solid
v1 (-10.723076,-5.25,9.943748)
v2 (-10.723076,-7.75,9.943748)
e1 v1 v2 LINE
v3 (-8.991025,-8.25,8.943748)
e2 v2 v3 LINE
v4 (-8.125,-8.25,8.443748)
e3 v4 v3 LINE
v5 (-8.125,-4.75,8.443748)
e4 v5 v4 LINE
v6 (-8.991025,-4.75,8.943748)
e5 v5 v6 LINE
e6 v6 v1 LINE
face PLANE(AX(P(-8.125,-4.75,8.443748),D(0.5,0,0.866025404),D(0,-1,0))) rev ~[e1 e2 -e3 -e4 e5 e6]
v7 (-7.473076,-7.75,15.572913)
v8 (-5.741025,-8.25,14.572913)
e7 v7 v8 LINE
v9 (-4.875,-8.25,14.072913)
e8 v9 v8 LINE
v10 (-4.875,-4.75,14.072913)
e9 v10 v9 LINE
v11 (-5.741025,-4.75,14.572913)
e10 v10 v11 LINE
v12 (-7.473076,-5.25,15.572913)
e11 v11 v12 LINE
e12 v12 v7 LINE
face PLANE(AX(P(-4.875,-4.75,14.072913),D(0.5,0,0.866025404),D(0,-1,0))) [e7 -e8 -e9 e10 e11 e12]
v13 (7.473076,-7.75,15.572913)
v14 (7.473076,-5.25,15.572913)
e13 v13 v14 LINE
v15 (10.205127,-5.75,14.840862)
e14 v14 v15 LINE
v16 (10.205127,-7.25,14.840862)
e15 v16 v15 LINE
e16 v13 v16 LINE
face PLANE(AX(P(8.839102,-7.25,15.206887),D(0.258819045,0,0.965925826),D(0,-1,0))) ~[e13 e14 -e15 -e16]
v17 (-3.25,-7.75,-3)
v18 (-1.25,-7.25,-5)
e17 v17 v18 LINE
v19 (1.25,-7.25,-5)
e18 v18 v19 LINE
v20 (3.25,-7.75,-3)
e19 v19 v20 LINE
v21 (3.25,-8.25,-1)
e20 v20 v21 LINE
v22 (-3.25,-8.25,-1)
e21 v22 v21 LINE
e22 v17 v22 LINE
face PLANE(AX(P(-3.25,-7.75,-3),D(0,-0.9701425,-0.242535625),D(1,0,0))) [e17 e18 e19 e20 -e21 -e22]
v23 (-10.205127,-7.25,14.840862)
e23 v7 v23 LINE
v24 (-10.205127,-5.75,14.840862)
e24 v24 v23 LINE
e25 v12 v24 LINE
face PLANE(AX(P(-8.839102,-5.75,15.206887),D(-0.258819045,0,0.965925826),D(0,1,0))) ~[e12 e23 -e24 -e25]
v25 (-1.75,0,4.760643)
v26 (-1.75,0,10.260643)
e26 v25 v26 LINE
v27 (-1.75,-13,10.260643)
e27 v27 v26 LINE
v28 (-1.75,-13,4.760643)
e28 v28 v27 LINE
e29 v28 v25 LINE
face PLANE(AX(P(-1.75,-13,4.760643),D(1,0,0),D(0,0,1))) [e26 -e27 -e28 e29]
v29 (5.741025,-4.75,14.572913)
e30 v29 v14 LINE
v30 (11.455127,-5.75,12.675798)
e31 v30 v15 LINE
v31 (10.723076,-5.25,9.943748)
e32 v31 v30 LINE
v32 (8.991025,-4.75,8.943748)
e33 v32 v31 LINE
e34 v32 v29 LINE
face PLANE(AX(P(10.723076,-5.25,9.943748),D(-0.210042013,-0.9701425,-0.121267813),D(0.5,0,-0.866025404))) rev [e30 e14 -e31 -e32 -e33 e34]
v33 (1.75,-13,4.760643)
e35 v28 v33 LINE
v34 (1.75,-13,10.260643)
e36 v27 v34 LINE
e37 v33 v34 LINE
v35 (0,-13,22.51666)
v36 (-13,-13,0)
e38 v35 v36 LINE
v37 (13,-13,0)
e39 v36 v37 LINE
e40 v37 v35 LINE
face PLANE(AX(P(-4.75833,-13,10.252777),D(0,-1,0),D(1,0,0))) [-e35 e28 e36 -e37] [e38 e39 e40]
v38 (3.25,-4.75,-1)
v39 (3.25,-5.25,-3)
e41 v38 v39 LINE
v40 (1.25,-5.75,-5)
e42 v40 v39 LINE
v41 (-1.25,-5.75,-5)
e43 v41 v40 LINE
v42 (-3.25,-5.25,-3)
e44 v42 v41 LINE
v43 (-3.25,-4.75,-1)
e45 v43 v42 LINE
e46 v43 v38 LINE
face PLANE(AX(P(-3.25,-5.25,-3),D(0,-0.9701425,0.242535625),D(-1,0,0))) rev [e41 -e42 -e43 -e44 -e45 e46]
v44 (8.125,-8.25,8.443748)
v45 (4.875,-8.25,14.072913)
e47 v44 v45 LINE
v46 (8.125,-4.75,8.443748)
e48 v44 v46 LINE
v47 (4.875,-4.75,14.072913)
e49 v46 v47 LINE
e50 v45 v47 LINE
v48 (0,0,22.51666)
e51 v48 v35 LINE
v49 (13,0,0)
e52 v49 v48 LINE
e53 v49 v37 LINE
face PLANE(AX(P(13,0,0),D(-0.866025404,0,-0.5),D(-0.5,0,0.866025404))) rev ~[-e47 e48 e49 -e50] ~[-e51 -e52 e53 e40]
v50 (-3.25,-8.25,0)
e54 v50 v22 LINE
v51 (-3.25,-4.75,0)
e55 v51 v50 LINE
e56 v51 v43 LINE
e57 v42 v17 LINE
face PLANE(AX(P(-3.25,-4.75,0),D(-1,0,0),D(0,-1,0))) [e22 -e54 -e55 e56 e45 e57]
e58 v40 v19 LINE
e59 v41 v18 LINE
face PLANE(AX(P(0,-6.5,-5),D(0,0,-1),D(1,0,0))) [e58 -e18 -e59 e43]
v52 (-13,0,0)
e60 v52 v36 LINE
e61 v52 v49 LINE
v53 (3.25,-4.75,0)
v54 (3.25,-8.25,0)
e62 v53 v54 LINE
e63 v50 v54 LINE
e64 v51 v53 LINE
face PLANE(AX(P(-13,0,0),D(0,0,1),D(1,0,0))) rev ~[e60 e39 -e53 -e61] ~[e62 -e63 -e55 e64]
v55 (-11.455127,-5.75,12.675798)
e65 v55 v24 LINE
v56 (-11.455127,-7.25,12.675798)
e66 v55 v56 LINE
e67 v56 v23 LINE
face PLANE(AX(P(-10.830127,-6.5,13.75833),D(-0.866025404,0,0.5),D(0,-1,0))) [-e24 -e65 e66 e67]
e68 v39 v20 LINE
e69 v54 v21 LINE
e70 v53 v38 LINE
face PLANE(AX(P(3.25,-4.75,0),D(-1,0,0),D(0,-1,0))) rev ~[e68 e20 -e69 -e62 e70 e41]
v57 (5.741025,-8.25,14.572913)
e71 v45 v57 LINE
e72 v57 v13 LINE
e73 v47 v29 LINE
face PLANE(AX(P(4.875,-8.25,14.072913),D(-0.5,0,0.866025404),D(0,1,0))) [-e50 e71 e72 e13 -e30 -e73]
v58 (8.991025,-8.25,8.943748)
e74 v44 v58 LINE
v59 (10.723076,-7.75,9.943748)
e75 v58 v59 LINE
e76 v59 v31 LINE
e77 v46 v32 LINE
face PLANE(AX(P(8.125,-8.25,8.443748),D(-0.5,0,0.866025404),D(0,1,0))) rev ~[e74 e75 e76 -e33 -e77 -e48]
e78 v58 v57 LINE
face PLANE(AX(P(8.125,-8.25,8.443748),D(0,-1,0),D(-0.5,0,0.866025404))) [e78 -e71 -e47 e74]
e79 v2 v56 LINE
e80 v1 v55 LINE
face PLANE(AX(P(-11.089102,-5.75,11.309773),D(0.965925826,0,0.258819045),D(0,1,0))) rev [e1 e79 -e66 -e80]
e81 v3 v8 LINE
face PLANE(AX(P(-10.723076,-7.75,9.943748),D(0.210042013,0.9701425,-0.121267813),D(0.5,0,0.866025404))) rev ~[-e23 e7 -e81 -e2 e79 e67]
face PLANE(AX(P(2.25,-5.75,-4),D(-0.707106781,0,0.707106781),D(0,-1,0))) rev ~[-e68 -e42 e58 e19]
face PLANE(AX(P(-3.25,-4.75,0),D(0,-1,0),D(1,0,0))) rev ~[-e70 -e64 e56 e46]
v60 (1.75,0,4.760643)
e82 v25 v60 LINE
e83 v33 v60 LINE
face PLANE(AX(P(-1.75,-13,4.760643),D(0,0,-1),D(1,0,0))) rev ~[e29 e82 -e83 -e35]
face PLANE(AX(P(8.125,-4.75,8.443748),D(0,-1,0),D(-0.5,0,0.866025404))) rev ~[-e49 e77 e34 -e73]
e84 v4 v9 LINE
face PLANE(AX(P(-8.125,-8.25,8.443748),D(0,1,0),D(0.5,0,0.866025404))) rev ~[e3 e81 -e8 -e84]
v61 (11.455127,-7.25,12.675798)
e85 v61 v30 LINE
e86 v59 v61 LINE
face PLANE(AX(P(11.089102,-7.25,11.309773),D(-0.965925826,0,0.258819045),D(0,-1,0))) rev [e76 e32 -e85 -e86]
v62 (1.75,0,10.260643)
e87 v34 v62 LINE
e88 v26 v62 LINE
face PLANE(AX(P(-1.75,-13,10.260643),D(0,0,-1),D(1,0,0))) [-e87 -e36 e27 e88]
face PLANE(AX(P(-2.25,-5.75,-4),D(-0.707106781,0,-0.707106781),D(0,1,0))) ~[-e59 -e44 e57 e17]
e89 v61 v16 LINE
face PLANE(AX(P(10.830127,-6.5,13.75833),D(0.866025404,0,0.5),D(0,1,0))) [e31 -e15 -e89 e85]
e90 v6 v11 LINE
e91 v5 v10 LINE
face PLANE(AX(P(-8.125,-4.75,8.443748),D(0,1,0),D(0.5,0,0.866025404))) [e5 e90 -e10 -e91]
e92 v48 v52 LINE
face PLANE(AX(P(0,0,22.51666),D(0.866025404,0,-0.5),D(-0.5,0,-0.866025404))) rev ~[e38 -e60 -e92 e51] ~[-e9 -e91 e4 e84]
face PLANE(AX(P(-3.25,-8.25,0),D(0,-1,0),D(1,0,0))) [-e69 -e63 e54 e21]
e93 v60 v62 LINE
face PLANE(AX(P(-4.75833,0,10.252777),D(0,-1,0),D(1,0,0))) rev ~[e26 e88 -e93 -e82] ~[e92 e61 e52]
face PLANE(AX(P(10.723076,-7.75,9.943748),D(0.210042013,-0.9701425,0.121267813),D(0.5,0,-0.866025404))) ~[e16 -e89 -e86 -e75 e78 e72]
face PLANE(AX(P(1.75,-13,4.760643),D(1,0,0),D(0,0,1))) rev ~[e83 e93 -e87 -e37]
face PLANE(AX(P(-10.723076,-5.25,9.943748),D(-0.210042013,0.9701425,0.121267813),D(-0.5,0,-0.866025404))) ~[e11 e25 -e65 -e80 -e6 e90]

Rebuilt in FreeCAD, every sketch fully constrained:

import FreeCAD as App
import Part
import Sketcher
from FreeCAD import Vector
Q = App.Units.Quantity


def edges_at(feature, points):
    """Names of the edges that pass closest to the given points."""
    edges = feature.Shape.Edges
    near = lambda p: min(range(len(edges)), key=lambda i: edges[i].distToShape(Part.Vertex(*p))[0])
    return sorted({f"Edge{near(p) + 1}" for p in points})

doc = App.newDocument("Part")
params = doc.addObject("Spreadsheet::Sheet", "Params")
for row, (alias, value) in enumerate([
    ("sketch1_width", "26 mm"),
    ("pad1_length", "13 mm"),
    ("sketch2_width", "3.5 mm"),
    ("sketch2_height", "5.5 mm"),
    ("sketch3_width", "3.5 mm"),
    ("sketch3_height", "6.5 mm"),
    ("pad2_length", "5 mm"),
    ("sketch4_width", "3.5 mm"),
    ("sketch4_height", "6.5 mm"),
    ("pad3_length", "5 mm"),
    ("sketch5_width", "6.5 mm"),
    ("sketch5_height", "3.5 mm"),
    ("pad4_length", "5 mm"),
    ("chamfer_size", "4 mm"),
    ("chamfer_size2", "1 mm"),
    ("chamfer2_size", "4 mm"),
    ("chamfer2_size2", "1 mm"),
    ("chamfer3_size", "4 mm"),
    ("chamfer3_size2", "1 mm"),
    ("chamfer4_size", "4 mm"),
    ("chamfer4_size2", "1 mm"),
    ("chamfer5_size", "1 mm"),
    ("chamfer5_size2", "4 mm"),
    ("chamfer6_size", "1 mm"),
    ("chamfer6_size2", "4 mm"),
    ("chamfer7_size", "2 mm"),
], start=1):
    params.set(f"A{row}", alias)
    params.set(f"B{row}", "=" + value)
    params.setAlias(f"B{row}", alias)

body = doc.addObject("PartDesign::Body", "Body")

# Sketch on XZ plane
sketch1 = doc.addObject("Sketcher::SketchObject", "Sketch")
body.addObject(sketch1)
sketch1.AttachmentSupport = (doc.XZ_Plane, [""])
sketch1.MapMode = "FlatFace"
sketch1.addGeometry(Part.LineSegment(Vector(0, 23, 0), Vector(-13, 0, 0)), False)
sketch1.addGeometry(Part.LineSegment(Vector(-13, 0, 0), Vector(13, 0, 0)), False)
sketch1.addGeometry(Part.LineSegment(Vector(13, 0, 0), Vector(0, 23, 0)), False)
sketch1.addConstraint(Sketcher.Constraint("Coincident", 0, 2, 1, 1))
sketch1.addConstraint(Sketcher.Constraint("Coincident", 1, 2, 2, 1))
sketch1.addConstraint(Sketcher.Constraint("Coincident", 2, 2, 0, 1))
sketch1.addConstraint(Sketcher.Constraint("Horizontal", 1))
sketch1.addConstraint(Sketcher.Constraint("Symmetric", 0, 2, 1, 2, -1, 1))
sketch1.addConstraint(Sketcher.Constraint("PointOnObject", 2, 2, -2))
sketch1.addConstraint(Sketcher.Constraint("DistanceX", 1, 1, 1, 2, Q("26 mm")))
sketch1.addConstraint(Sketcher.Constraint("Angle", 0, Q("-120 deg")))
sketch1.setExpression("Constraints[6]", "Params.sketch1_width")
pad1 = doc.addObject("PartDesign::Pad", "Pad")
body.addObject(pad1)
pad1.Profile = sketch1
pad1.setExpression("Length", "Params.pad1_length")

# Sketch on XZ plane
sketch2 = doc.addObject("Sketcher::SketchObject", "Sketch001")
body.addObject(sketch2)
sketch2.AttachmentSupport = (doc.XZ_Plane, [""])
sketch2.MapMode = "FlatFace"
sketch2.AttachmentOffset = App.Placement(Vector(0, 0, 13), App.Rotation())
sketch2.addGeometry(Part.LineSegment(Vector(-1.8, 10.3, 0), Vector(-1.8, 4.8, 0)), False)
sketch2.addGeometry(Part.LineSegment(Vector(-1.8, 4.8, 0), Vector(1.8, 4.8, 0)), False)
sketch2.addGeometry(Part.LineSegment(Vector(1.8, 4.8, 0), Vector(1.8, 10.3, 0)), False)
sketch2.addGeometry(Part.LineSegment(Vector(1.8, 10.3, 0), Vector(-1.8, 10.3, 0)), False)
sketch2.addConstraint(Sketcher.Constraint("Coincident", 0, 2, 1, 1))
sketch2.addConstraint(Sketcher.Constraint("Coincident", 1, 2, 2, 1))
sketch2.addConstraint(Sketcher.Constraint("Coincident", 2, 2, 3, 1))
sketch2.addConstraint(Sketcher.Constraint("Coincident", 3, 2, 0, 1))
sketch2.addConstraint(Sketcher.Constraint("Vertical", 0))
sketch2.addConstraint(Sketcher.Constraint("Horizontal", 1))
sketch2.addConstraint(Sketcher.Constraint("Vertical", 2))
sketch2.addConstraint(Sketcher.Constraint("Horizontal", 3))
sketch2.addConstraint(Sketcher.Constraint("DistanceX", 1, 1, 1, 2, Q("3.5 mm")))
sketch2.addConstraint(Sketcher.Constraint("DistanceY", 0, 2, 0, 1, Q("5.5 mm")))
sketch2.addConstraint(Sketcher.Constraint("DistanceX", 0, 2, -1, 1, Q("1.75 mm")))
sketch2.addConstraint(Sketcher.Constraint("DistanceY", -1, 1, 0, 2, Q("4.760643 mm")))
sketch2.setExpression("Constraints[8]", "Params.sketch2_width")
sketch2.setExpression("Constraints[9]", "Params.sketch2_height")
pocket1 = doc.addObject("PartDesign::Pocket", "Pocket")
body.addObject(pocket1)
pocket1.Profile = sketch2
pocket1.Type = "ThroughAll"

# Sketch on an angled plane
sketch3 = doc.addObject("Sketcher::SketchObject", "Sketch002")
body.addObject(sketch3)
sketch3.Placement = App.Placement(Vector(9.75, 0, 5.629165), App.Rotation(Vector(0, 1, 0), Vector(-0.5, 0, 0.866025404), Vector(0.866025404, 0, 0.5), "ZXY"))
sketch3.addGeometry(Part.LineSegment(Vector(-8.2, 9.8, 0), Vector(-8.2, 3.3, 0)), False)
sketch3.addGeometry(Part.LineSegment(Vector(-8.2, 3.3, 0), Vector(-4.8, 3.3, 0)), False)
sketch3.addGeometry(Part.LineSegment(Vector(-4.8, 3.3, 0), Vector(-4.8, 9.8, 0)), False)
sketch3.addGeometry(Part.LineSegment(Vector(-4.8, 9.8, 0), Vector(-8.2, 9.8, 0)), False)
sketch3.addConstraint(Sketcher.Constraint("Coincident", 0, 2, 1, 1))
sketch3.addConstraint(Sketcher.Constraint("Coincident", 1, 2, 2, 1))
sketch3.addConstraint(Sketcher.Constraint("Coincident", 2, 2, 3, 1))
sketch3.addConstraint(Sketcher.Constraint("Coincident", 3, 2, 0, 1))
sketch3.addConstraint(Sketcher.Constraint("Vertical", 0))
sketch3.addConstraint(Sketcher.Constraint("Horizontal", 1))
sketch3.addConstraint(Sketcher.Constraint("Vertical", 2))
sketch3.addConstraint(Sketcher.Constraint("Horizontal", 3))
sketch3.addConstraint(Sketcher.Constraint("DistanceX", 1, 1, 1, 2, Q("3.5 mm")))
sketch3.addConstraint(Sketcher.Constraint("DistanceY", 0, 2, 0, 1, Q("6.5 mm")))
sketch3.addConstraint(Sketcher.Constraint("DistanceX", 0, 2, -1, 1, Q("8.25 mm")))
sketch3.addConstraint(Sketcher.Constraint("DistanceY", -1, 1, 0, 2, Q("3.25 mm")))
sketch3.setExpression("Constraints[8]", "Params.sketch3_width")
sketch3.setExpression("Constraints[9]", "Params.sketch3_height")
pad2 = doc.addObject("PartDesign::Pad", "Pad001")
body.addObject(pad2)
pad2.Profile = sketch3
pad2.setExpression("Length", "Params.pad2_length")

# Sketch on an angled plane
sketch4 = doc.addObject("Sketcher::SketchObject", "Sketch003")
body.addObject(sketch4)
sketch4.Placement = App.Placement(Vector(-9.75, 0, 5.629165), App.Rotation(Vector(0, -1, 0), Vector(0.5, 0, 0.866025404), Vector(-0.866025404, 0, 0.5), "ZXY"))
sketch4.addGeometry(Part.LineSegment(Vector(4.8, 9.8, 0), Vector(4.8, 3.3, 0)), False)
sketch4.addGeometry(Part.LineSegment(Vector(4.8, 3.3, 0), Vector(8.2, 3.3, 0)), False)
sketch4.addGeometry(Part.LineSegment(Vector(8.2, 3.3, 0), Vector(8.2, 9.8, 0)), False)
sketch4.addGeometry(Part.LineSegment(Vector(8.2, 9.8, 0), Vector(4.8, 9.8, 0)), False)
sketch4.addConstraint(Sketcher.Constraint("Coincident", 0, 2, 1, 1))
sketch4.addConstraint(Sketcher.Constraint("Coincident", 1, 2, 2, 1))
sketch4.addConstraint(Sketcher.Constraint("Coincident", 2, 2, 3, 1))
sketch4.addConstraint(Sketcher.Constraint("Coincident", 3, 2, 0, 1))
sketch4.addConstraint(Sketcher.Constraint("Vertical", 0))
sketch4.addConstraint(Sketcher.Constraint("Horizontal", 1))
sketch4.addConstraint(Sketcher.Constraint("Vertical", 2))
sketch4.addConstraint(Sketcher.Constraint("Horizontal", 3))
sketch4.addConstraint(Sketcher.Constraint("DistanceX", 1, 1, 1, 2, Q("3.5 mm")))
sketch4.addConstraint(Sketcher.Constraint("DistanceY", 0, 2, 0, 1, Q("6.5 mm")))
sketch4.addConstraint(Sketcher.Constraint("DistanceX", -1, 1, 0, 2, Q("4.75 mm")))
sketch4.addConstraint(Sketcher.Constraint("DistanceY", -1, 1, 0, 2, Q("3.25 mm")))
sketch4.setExpression("Constraints[8]", "Params.sketch4_width")
sketch4.setExpression("Constraints[9]", "Params.sketch4_height")
pad3 = doc.addObject("PartDesign::Pad", "Pad002")
body.addObject(pad3)
pad3.Profile = sketch4
pad3.setExpression("Length", "Params.pad3_length")

# Sketch on XY plane
sketch5 = doc.addObject("Sketcher::SketchObject", "Sketch004")
body.addObject(sketch5)
sketch5.AttachmentSupport = (doc.XY_Plane, [""])
sketch5.MapMode = "FlatFace"
sketch5.addGeometry(Part.LineSegment(Vector(-3.2, -8.2, 0), Vector(-3.2, -4.8, 0)), False)
sketch5.addGeometry(Part.LineSegment(Vector(-3.2, -4.8, 0), Vector(3.2, -4.8, 0)), False)
sketch5.addGeometry(Part.LineSegment(Vector(3.2, -4.8, 0), Vector(3.2, -8.2, 0)), False)
sketch5.addGeometry(Part.LineSegment(Vector(3.2, -8.2, 0), Vector(-3.2, -8.2, 0)), False)
sketch5.addConstraint(Sketcher.Constraint("Coincident", 0, 2, 1, 1))
sketch5.addConstraint(Sketcher.Constraint("Coincident", 1, 2, 2, 1))
sketch5.addConstraint(Sketcher.Constraint("Coincident", 2, 2, 3, 1))
sketch5.addConstraint(Sketcher.Constraint("Coincident", 3, 2, 0, 1))
sketch5.addConstraint(Sketcher.Constraint("Vertical", 0))
sketch5.addConstraint(Sketcher.Constraint("Horizontal", 1))
sketch5.addConstraint(Sketcher.Constraint("Vertical", 2))
sketch5.addConstraint(Sketcher.Constraint("Horizontal", 3))
sketch5.addConstraint(Sketcher.Constraint("DistanceX", 1, 1, 1, 2, Q("6.5 mm")))
sketch5.addConstraint(Sketcher.Constraint("DistanceY", 0, 1, 0, 2, Q("3.5 mm")))
sketch5.addConstraint(Sketcher.Constraint("DistanceX", 0, 2, -1, 1, Q("3.25 mm")))
sketch5.addConstraint(Sketcher.Constraint("DistanceY", 0, 2, -1, 1, Q("4.75 mm")))
sketch5.setExpression("Constraints[8]", "Params.sketch5_width")
sketch5.setExpression("Constraints[9]", "Params.sketch5_height")
pad4 = doc.addObject("PartDesign::Pad", "Pad003")
body.addObject(pad4)
pad4.Profile = sketch5
pad4.setExpression("Length", "Params.pad4_length")
pad4.Reversed = True
doc.recompute()

chamfer = doc.addObject("PartDesign::Chamfer", "Chamfer")
body.addObject(chamfer)
chamfer.Base = (pad4, edges_at(pad4, [(10.83, -8.25, 13.758)]))
chamfer.ChamferType = "Two distances"
chamfer.setExpression("Size", "Params.chamfer_size")
chamfer.setExpression("Size2", "Params.chamfer_size2")
doc.recompute()

chamfer2 = doc.addObject("PartDesign::Chamfer", "Chamfer001")
body.addObject(chamfer2)
chamfer2.Base = (chamfer, edges_at(chamfer, [(10.83, -4.75, 13.758)]))
chamfer2.ChamferType = "Two distances"
chamfer2.setExpression("Size", "Params.chamfer2_size")
chamfer2.setExpression("Size2", "Params.chamfer2_size2")
chamfer2.FlipDirection = True
doc.recompute()

chamfer3 = doc.addObject("PartDesign::Chamfer", "Chamfer002")
body.addObject(chamfer3)
chamfer3.Base = (chamfer2, edges_at(chamfer2, [(0, -4.75, -5)]))
chamfer3.ChamferType = "Two distances"
chamfer3.setExpression("Size", "Params.chamfer3_size")
chamfer3.setExpression("Size2", "Params.chamfer3_size2")
doc.recompute()

chamfer4 = doc.addObject("PartDesign::Chamfer", "Chamfer003")
body.addObject(chamfer4)
chamfer4.Base = (chamfer3, edges_at(chamfer3, [(-10.83, -4.75, 13.758)]))
chamfer4.ChamferType = "Two distances"
chamfer4.setExpression("Size", "Params.chamfer4_size")
chamfer4.setExpression("Size2", "Params.chamfer4_size2")
doc.recompute()

chamfer5 = doc.addObject("PartDesign::Chamfer", "Chamfer004")
body.addObject(chamfer5)
chamfer5.Base = (chamfer4, edges_at(chamfer4, [(-10.83, -8.25, 13.758)]))
chamfer5.ChamferType = "Two distances"
chamfer5.setExpression("Size", "Params.chamfer5_size")
chamfer5.setExpression("Size2", "Params.chamfer5_size2")
doc.recompute()

chamfer6 = doc.addObject("PartDesign::Chamfer", "Chamfer005")
body.addObject(chamfer6)
chamfer6.Base = (chamfer5, edges_at(chamfer5, [(0, -8.25, -5)]))
chamfer6.ChamferType = "Two distances"
chamfer6.setExpression("Size", "Params.chamfer6_size")
chamfer6.setExpression("Size2", "Params.chamfer6_size2")
chamfer6.FlipDirection = True
doc.recompute()

chamfer7 = doc.addObject("PartDesign::Chamfer", "Chamfer006")
body.addObject(chamfer7)
chamfer7.Base = (chamfer6, edges_at(chamfer6, [
    (-9.205, -6.5, 16.573),
    (-12.455, -6.5, 10.944),
    (9.205, -6.5, 16.573),
    (12.455, -6.5, 10.944),
    (-3.25, -6.5, -5),
    (3.25, -6.5, -5),
]))
chamfer7.setExpression("Size", "Params.chamfer7_size")

doc.recompute()
